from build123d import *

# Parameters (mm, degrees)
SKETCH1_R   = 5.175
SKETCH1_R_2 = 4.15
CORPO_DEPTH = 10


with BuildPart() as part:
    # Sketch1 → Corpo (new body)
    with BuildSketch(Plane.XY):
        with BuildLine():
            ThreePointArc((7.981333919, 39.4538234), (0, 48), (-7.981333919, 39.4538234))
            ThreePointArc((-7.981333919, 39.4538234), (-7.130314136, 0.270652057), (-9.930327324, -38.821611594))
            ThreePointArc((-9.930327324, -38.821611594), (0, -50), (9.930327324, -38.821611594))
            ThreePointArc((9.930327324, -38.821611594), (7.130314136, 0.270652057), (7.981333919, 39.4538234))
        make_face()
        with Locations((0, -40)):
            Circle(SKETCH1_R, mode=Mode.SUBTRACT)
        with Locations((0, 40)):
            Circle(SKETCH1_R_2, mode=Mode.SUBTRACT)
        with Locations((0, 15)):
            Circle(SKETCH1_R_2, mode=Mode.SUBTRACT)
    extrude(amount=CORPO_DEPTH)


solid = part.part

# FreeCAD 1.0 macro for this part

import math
import FreeCAD as App
import Part
import Sketcher
from FreeCAD import Vector

doc = App.newDocument("Part")
body = doc.addObject("PartDesign::Body", "Body")

# Sketch on XY plane
sketch1 = body.newObject("Sketcher::SketchObject", "Sketch")
sketch1.AttachmentSupport = (doc.getObject("XY_Plane"), [""])
sketch1.MapMode = "FlatFace"
sketch1.addGeometry(Part.ArcOfCircle(Part.Circle(Vector(0, 40, 0), Vector(0, 0, 1), 8), math.radians(-3.914747), math.radians(183.914747)), False)
sketch1.addGeometry(Part.ArcOfCircle(Part.Circle(Vector(-427.584869, 10.739622, 0), Vector(0, 0, 1), 420.584869), math.radians(-6.767392), math.radians(3.914747)), False)
sketch1.addGeometry(Part.ArcOfCircle(Part.Circle(Vector(0, -40, 0), Vector(0, 0, 1), 10), math.radians(173.232608), math.radians(366.767392)), False)
sketch1.addGeometry(Part.ArcOfCircle(Part.Circle(Vector(427.584869, 10.739622, 0), Vector(0, 0, 1), 420.584869), math.radians(176.085253), math.radians(186.767392)), False)
sketch1.addGeometry(Part.Circle(Vector(0, -40, 0), Vector(0, 0, 1), 5.175), False)
sketch1.addGeometry(Part.Circle(Vector(0, 15, 0), Vector(0, 0, 1), 4.15), False)
sketch1.addGeometry(Part.Circle(Vector(0, 40, 0), Vector(0, 0, 1), 4.15), False)
sketch1.addConstraint(Sketcher.Constraint("Tangent", 0, 2, 1, 2))
sketch1.addConstraint(Sketcher.Constraint("Tangent", 1, 1, 2, 1))
sketch1.addConstraint(Sketcher.Constraint("Tangent", 2, 2, 3, 2))
sketch1.addConstraint(Sketcher.Constraint("Tangent", 3, 1, 0, 1))
sketch1.addConstraint(Sketcher.Constraint("Coincident", 4, 3, 2, 3))
sketch1.addConstraint(Sketcher.Constraint("Coincident", 6, 3, 0, 3))
sketch1.addConstraint(Sketcher.Constraint("Equal", 1, 3))
sketch1.addConstraint(Sketcher.Constraint("Equal", 5, 6))
sketch1.addConstraint(Sketcher.Constraint("Symmetric", 0, 3, 2, 3, -1, 1))
sketch1.addConstraint(Sketcher.Constraint("PointOnObject", 0, 3, -2))
sketch1.addConstraint(Sketcher.Constraint("PointOnObject", 5, 3, -2))
sketch1.addConstraint(Sketcher.Constraint("Radius", 0, 8.0))
sketch1.addConstraint(Sketcher.Constraint("Radius", 2, 10.0))
sketch1.addConstraint(Sketcher.Constraint("Diameter", 5, 8.3))
sketch1.addConstraint(Sketcher.Constraint("Diameter", 4, 10.35))
sketch1.addConstraint(Sketcher.Constraint("DistanceY", -1, 1, 0, 3, 40.0))
sketch1.addConstraint(Sketcher.Constraint("DistanceY", -1, 1, 5, 3, 15.0))
sketch1.addConstraint(Sketcher.Constraint("Radius", 1, 420.584869))
pad1 = body.newObject("PartDesign::Pad", "Pad")
pad1.Profile = sketch1
pad1.Length = 10

doc.recompute()
